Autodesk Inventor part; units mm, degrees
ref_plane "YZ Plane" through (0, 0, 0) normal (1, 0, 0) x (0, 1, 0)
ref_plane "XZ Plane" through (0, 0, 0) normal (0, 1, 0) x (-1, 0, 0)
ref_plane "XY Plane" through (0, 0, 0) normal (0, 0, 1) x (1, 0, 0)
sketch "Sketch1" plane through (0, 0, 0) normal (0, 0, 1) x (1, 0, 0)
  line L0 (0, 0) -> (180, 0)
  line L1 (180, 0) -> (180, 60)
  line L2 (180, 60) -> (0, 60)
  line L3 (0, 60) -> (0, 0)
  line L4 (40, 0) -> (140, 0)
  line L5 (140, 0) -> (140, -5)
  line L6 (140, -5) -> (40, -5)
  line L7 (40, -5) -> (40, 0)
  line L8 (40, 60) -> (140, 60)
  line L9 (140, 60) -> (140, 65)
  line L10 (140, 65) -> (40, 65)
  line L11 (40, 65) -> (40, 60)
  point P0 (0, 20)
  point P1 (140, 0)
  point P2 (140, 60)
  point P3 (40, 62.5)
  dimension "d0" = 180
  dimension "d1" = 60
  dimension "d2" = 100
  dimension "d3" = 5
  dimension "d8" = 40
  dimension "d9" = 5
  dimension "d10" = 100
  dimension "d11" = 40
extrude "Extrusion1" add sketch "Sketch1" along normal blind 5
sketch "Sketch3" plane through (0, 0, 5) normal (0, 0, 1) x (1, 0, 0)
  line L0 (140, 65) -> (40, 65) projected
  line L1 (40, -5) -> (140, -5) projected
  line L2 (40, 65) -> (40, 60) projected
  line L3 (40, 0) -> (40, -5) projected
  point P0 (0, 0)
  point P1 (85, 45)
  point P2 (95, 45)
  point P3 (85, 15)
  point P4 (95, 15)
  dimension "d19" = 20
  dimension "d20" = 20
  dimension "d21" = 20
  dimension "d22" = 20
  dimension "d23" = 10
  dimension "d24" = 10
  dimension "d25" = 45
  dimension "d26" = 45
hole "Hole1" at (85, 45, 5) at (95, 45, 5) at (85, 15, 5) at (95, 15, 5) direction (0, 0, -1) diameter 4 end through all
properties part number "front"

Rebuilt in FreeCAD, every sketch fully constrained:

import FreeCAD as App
import Part
import Sketcher
Q = App.Units.Quantity


def add_polygon(sketch, points):
    """Adds a closed chain of lines whose ends are joined by coincident constraints."""
    first, n = sketch.GeometryCount, len(points)
    for a, b in zip(points, points[1:] + points[:1]):
        sketch.addGeometry(Part.LineSegment(App.Vector(*a, 0), App.Vector(*b, 0)), False)
    for i in range(n):
        sketch.addConstraint(Sketcher.Constraint("Coincident", first + i, 2, first + (i + 1) % n, 1))

doc = App.newDocument("Part")
body = doc.addObject("PartDesign::Body", "Body")

# Sketch on XY plane
sketch1 = body.newObject("Sketcher::SketchObject", "Sketch")
sketch1.AttachmentSupport = (doc.getObject("XY_Plane"), [""])
sketch1.MapMode = "FlatFace"
add_polygon(sketch1, [(0, 60), (0, 0), (40, 0), (40, -5), (140, -5), (140, 0), (180, 0), (180, 60), (140, 60), (140, 65), (40, 65), (40, 60)])  # lines 0-11
sketch1.addConstraint(Sketcher.Constraint("Vertical", 0))
sketch1.addConstraint(Sketcher.Constraint("Horizontal", 1))
sketch1.addConstraint(Sketcher.Constraint("Vertical", 2))
sketch1.addConstraint(Sketcher.Constraint("Horizontal", 3))
sketch1.addConstraint(Sketcher.Constraint("Vertical", 4))
sketch1.addConstraint(Sketcher.Constraint("Horizontal", 5))
sketch1.addConstraint(Sketcher.Constraint("Vertical", 6))
sketch1.addConstraint(Sketcher.Constraint("Horizontal", 7))
sketch1.addConstraint(Sketcher.Constraint("Vertical", 8))
sketch1.addConstraint(Sketcher.Constraint("Horizontal", 9))
sketch1.addConstraint(Sketcher.Constraint("Vertical", 10))
sketch1.addConstraint(Sketcher.Constraint("Horizontal", 11))
sketch1.addConstraint(Sketcher.Constraint("Coincident", 0, 2, -1, 1))
sketch1.addConstraint(Sketcher.Constraint("PointOnObject", 4, 2, -1))
sketch1.addConstraint(Sketcher.Constraint("Horizontal", 7, 2, 10, 2))
sketch1.addConstraint(Sketcher.Constraint("Vertical", 4, 2, 7, 2))
sketch1.addConstraint(Sketcher.Constraint("Vertical", 2, 2, 9, 2))
sketch1.addConstraint(Sketcher.Constraint("Equal", 1, 5))
sketch1.addConstraint(Sketcher.Constraint("Equal", 4, 8))
sketch1.addConstraint(Sketcher.Constraint("DistanceX", 1, 1, 1, 2, Q("40 mm")))
sketch1.addConstraint(Sketcher.Constraint("DistanceX", 3, 1, 3, 2, Q("100 mm")))
sketch1.addConstraint(Sketcher.Constraint("DistanceY", 0, 2, 0, 1, Q("60 mm")))
sketch1.addConstraint(Sketcher.Constraint("DistanceY", 2, 2, 2, 1, Q("5 mm")))
pad1 = body.newObject("PartDesign::Pad", "Pad")
pad1.Profile = sketch1
pad1.Length = 5

# Sketch on XY plane
sketch2 = body.newObject("Sketcher::SketchObject", "Sketch001")
sketch2.AttachmentSupport = (doc.getObject("XY_Plane"), [""])
sketch2.MapMode = "FlatFace"
sketch2.AttachmentOffset = App.Placement(App.Vector(0, 0, 5), App.Rotation())
sketch2.addGeometry(Part.Circle(App.Vector(85, 45, 0), App.Vector(0, 0, 1), 2), False)
sketch2.addGeometry(Part.Circle(App.Vector(95, 45, 0), App.Vector(0, 0, 1), 2), False)
sketch2.addGeometry(Part.Circle(App.Vector(85, 15, 0), App.Vector(0, 0, 1), 2), False)
sketch2.addGeometry(Part.Circle(App.Vector(95, 15, 0), App.Vector(0, 0, 1), 2), False)
sketch2.addConstraint(Sketcher.Constraint("Equal", 0, 1))
sketch2.addConstraint(Sketcher.Constraint("Equal", 1, 2))
sketch2.addConstraint(Sketcher.Constraint("Equal", 2, 3))
sketch2.addConstraint(Sketcher.Constraint("Horizontal", 0, 3, 1, 3))
sketch2.addConstraint(Sketcher.Constraint("Horizontal", 2, 3, 3, 3))
sketch2.addConstraint(Sketcher.Constraint("Vertical", 0, 3, 2, 3))
sketch2.addConstraint(Sketcher.Constraint("Vertical", 1, 3, 3, 3))
sketch2.addConstraint(Sketcher.Constraint("Diameter", 0, Q("4 mm")))
sketch2.addConstraint(Sketcher.Constraint("DistanceX", -1, 1, 0, 3, Q("85 mm")))
sketch2.addConstraint(Sketcher.Constraint("DistanceY", -1, 1, 0, 3, Q("45 mm")))
sketch2.addConstraint(Sketcher.Constraint("DistanceX", -1, 1, 1, 3, Q("95 mm")))
sketch2.addConstraint(Sketcher.Constraint("DistanceY", -1, 1, 2, 3, Q("15 mm")))
doc.recompute()
hole = body.newObject("PartDesign::Hole", "Hole")
hole.Profile = sketch2
hole.ThreadType = "None"
hole.Diameter = 4
hole.DepthType = "ThroughAll"

doc.recompute()
